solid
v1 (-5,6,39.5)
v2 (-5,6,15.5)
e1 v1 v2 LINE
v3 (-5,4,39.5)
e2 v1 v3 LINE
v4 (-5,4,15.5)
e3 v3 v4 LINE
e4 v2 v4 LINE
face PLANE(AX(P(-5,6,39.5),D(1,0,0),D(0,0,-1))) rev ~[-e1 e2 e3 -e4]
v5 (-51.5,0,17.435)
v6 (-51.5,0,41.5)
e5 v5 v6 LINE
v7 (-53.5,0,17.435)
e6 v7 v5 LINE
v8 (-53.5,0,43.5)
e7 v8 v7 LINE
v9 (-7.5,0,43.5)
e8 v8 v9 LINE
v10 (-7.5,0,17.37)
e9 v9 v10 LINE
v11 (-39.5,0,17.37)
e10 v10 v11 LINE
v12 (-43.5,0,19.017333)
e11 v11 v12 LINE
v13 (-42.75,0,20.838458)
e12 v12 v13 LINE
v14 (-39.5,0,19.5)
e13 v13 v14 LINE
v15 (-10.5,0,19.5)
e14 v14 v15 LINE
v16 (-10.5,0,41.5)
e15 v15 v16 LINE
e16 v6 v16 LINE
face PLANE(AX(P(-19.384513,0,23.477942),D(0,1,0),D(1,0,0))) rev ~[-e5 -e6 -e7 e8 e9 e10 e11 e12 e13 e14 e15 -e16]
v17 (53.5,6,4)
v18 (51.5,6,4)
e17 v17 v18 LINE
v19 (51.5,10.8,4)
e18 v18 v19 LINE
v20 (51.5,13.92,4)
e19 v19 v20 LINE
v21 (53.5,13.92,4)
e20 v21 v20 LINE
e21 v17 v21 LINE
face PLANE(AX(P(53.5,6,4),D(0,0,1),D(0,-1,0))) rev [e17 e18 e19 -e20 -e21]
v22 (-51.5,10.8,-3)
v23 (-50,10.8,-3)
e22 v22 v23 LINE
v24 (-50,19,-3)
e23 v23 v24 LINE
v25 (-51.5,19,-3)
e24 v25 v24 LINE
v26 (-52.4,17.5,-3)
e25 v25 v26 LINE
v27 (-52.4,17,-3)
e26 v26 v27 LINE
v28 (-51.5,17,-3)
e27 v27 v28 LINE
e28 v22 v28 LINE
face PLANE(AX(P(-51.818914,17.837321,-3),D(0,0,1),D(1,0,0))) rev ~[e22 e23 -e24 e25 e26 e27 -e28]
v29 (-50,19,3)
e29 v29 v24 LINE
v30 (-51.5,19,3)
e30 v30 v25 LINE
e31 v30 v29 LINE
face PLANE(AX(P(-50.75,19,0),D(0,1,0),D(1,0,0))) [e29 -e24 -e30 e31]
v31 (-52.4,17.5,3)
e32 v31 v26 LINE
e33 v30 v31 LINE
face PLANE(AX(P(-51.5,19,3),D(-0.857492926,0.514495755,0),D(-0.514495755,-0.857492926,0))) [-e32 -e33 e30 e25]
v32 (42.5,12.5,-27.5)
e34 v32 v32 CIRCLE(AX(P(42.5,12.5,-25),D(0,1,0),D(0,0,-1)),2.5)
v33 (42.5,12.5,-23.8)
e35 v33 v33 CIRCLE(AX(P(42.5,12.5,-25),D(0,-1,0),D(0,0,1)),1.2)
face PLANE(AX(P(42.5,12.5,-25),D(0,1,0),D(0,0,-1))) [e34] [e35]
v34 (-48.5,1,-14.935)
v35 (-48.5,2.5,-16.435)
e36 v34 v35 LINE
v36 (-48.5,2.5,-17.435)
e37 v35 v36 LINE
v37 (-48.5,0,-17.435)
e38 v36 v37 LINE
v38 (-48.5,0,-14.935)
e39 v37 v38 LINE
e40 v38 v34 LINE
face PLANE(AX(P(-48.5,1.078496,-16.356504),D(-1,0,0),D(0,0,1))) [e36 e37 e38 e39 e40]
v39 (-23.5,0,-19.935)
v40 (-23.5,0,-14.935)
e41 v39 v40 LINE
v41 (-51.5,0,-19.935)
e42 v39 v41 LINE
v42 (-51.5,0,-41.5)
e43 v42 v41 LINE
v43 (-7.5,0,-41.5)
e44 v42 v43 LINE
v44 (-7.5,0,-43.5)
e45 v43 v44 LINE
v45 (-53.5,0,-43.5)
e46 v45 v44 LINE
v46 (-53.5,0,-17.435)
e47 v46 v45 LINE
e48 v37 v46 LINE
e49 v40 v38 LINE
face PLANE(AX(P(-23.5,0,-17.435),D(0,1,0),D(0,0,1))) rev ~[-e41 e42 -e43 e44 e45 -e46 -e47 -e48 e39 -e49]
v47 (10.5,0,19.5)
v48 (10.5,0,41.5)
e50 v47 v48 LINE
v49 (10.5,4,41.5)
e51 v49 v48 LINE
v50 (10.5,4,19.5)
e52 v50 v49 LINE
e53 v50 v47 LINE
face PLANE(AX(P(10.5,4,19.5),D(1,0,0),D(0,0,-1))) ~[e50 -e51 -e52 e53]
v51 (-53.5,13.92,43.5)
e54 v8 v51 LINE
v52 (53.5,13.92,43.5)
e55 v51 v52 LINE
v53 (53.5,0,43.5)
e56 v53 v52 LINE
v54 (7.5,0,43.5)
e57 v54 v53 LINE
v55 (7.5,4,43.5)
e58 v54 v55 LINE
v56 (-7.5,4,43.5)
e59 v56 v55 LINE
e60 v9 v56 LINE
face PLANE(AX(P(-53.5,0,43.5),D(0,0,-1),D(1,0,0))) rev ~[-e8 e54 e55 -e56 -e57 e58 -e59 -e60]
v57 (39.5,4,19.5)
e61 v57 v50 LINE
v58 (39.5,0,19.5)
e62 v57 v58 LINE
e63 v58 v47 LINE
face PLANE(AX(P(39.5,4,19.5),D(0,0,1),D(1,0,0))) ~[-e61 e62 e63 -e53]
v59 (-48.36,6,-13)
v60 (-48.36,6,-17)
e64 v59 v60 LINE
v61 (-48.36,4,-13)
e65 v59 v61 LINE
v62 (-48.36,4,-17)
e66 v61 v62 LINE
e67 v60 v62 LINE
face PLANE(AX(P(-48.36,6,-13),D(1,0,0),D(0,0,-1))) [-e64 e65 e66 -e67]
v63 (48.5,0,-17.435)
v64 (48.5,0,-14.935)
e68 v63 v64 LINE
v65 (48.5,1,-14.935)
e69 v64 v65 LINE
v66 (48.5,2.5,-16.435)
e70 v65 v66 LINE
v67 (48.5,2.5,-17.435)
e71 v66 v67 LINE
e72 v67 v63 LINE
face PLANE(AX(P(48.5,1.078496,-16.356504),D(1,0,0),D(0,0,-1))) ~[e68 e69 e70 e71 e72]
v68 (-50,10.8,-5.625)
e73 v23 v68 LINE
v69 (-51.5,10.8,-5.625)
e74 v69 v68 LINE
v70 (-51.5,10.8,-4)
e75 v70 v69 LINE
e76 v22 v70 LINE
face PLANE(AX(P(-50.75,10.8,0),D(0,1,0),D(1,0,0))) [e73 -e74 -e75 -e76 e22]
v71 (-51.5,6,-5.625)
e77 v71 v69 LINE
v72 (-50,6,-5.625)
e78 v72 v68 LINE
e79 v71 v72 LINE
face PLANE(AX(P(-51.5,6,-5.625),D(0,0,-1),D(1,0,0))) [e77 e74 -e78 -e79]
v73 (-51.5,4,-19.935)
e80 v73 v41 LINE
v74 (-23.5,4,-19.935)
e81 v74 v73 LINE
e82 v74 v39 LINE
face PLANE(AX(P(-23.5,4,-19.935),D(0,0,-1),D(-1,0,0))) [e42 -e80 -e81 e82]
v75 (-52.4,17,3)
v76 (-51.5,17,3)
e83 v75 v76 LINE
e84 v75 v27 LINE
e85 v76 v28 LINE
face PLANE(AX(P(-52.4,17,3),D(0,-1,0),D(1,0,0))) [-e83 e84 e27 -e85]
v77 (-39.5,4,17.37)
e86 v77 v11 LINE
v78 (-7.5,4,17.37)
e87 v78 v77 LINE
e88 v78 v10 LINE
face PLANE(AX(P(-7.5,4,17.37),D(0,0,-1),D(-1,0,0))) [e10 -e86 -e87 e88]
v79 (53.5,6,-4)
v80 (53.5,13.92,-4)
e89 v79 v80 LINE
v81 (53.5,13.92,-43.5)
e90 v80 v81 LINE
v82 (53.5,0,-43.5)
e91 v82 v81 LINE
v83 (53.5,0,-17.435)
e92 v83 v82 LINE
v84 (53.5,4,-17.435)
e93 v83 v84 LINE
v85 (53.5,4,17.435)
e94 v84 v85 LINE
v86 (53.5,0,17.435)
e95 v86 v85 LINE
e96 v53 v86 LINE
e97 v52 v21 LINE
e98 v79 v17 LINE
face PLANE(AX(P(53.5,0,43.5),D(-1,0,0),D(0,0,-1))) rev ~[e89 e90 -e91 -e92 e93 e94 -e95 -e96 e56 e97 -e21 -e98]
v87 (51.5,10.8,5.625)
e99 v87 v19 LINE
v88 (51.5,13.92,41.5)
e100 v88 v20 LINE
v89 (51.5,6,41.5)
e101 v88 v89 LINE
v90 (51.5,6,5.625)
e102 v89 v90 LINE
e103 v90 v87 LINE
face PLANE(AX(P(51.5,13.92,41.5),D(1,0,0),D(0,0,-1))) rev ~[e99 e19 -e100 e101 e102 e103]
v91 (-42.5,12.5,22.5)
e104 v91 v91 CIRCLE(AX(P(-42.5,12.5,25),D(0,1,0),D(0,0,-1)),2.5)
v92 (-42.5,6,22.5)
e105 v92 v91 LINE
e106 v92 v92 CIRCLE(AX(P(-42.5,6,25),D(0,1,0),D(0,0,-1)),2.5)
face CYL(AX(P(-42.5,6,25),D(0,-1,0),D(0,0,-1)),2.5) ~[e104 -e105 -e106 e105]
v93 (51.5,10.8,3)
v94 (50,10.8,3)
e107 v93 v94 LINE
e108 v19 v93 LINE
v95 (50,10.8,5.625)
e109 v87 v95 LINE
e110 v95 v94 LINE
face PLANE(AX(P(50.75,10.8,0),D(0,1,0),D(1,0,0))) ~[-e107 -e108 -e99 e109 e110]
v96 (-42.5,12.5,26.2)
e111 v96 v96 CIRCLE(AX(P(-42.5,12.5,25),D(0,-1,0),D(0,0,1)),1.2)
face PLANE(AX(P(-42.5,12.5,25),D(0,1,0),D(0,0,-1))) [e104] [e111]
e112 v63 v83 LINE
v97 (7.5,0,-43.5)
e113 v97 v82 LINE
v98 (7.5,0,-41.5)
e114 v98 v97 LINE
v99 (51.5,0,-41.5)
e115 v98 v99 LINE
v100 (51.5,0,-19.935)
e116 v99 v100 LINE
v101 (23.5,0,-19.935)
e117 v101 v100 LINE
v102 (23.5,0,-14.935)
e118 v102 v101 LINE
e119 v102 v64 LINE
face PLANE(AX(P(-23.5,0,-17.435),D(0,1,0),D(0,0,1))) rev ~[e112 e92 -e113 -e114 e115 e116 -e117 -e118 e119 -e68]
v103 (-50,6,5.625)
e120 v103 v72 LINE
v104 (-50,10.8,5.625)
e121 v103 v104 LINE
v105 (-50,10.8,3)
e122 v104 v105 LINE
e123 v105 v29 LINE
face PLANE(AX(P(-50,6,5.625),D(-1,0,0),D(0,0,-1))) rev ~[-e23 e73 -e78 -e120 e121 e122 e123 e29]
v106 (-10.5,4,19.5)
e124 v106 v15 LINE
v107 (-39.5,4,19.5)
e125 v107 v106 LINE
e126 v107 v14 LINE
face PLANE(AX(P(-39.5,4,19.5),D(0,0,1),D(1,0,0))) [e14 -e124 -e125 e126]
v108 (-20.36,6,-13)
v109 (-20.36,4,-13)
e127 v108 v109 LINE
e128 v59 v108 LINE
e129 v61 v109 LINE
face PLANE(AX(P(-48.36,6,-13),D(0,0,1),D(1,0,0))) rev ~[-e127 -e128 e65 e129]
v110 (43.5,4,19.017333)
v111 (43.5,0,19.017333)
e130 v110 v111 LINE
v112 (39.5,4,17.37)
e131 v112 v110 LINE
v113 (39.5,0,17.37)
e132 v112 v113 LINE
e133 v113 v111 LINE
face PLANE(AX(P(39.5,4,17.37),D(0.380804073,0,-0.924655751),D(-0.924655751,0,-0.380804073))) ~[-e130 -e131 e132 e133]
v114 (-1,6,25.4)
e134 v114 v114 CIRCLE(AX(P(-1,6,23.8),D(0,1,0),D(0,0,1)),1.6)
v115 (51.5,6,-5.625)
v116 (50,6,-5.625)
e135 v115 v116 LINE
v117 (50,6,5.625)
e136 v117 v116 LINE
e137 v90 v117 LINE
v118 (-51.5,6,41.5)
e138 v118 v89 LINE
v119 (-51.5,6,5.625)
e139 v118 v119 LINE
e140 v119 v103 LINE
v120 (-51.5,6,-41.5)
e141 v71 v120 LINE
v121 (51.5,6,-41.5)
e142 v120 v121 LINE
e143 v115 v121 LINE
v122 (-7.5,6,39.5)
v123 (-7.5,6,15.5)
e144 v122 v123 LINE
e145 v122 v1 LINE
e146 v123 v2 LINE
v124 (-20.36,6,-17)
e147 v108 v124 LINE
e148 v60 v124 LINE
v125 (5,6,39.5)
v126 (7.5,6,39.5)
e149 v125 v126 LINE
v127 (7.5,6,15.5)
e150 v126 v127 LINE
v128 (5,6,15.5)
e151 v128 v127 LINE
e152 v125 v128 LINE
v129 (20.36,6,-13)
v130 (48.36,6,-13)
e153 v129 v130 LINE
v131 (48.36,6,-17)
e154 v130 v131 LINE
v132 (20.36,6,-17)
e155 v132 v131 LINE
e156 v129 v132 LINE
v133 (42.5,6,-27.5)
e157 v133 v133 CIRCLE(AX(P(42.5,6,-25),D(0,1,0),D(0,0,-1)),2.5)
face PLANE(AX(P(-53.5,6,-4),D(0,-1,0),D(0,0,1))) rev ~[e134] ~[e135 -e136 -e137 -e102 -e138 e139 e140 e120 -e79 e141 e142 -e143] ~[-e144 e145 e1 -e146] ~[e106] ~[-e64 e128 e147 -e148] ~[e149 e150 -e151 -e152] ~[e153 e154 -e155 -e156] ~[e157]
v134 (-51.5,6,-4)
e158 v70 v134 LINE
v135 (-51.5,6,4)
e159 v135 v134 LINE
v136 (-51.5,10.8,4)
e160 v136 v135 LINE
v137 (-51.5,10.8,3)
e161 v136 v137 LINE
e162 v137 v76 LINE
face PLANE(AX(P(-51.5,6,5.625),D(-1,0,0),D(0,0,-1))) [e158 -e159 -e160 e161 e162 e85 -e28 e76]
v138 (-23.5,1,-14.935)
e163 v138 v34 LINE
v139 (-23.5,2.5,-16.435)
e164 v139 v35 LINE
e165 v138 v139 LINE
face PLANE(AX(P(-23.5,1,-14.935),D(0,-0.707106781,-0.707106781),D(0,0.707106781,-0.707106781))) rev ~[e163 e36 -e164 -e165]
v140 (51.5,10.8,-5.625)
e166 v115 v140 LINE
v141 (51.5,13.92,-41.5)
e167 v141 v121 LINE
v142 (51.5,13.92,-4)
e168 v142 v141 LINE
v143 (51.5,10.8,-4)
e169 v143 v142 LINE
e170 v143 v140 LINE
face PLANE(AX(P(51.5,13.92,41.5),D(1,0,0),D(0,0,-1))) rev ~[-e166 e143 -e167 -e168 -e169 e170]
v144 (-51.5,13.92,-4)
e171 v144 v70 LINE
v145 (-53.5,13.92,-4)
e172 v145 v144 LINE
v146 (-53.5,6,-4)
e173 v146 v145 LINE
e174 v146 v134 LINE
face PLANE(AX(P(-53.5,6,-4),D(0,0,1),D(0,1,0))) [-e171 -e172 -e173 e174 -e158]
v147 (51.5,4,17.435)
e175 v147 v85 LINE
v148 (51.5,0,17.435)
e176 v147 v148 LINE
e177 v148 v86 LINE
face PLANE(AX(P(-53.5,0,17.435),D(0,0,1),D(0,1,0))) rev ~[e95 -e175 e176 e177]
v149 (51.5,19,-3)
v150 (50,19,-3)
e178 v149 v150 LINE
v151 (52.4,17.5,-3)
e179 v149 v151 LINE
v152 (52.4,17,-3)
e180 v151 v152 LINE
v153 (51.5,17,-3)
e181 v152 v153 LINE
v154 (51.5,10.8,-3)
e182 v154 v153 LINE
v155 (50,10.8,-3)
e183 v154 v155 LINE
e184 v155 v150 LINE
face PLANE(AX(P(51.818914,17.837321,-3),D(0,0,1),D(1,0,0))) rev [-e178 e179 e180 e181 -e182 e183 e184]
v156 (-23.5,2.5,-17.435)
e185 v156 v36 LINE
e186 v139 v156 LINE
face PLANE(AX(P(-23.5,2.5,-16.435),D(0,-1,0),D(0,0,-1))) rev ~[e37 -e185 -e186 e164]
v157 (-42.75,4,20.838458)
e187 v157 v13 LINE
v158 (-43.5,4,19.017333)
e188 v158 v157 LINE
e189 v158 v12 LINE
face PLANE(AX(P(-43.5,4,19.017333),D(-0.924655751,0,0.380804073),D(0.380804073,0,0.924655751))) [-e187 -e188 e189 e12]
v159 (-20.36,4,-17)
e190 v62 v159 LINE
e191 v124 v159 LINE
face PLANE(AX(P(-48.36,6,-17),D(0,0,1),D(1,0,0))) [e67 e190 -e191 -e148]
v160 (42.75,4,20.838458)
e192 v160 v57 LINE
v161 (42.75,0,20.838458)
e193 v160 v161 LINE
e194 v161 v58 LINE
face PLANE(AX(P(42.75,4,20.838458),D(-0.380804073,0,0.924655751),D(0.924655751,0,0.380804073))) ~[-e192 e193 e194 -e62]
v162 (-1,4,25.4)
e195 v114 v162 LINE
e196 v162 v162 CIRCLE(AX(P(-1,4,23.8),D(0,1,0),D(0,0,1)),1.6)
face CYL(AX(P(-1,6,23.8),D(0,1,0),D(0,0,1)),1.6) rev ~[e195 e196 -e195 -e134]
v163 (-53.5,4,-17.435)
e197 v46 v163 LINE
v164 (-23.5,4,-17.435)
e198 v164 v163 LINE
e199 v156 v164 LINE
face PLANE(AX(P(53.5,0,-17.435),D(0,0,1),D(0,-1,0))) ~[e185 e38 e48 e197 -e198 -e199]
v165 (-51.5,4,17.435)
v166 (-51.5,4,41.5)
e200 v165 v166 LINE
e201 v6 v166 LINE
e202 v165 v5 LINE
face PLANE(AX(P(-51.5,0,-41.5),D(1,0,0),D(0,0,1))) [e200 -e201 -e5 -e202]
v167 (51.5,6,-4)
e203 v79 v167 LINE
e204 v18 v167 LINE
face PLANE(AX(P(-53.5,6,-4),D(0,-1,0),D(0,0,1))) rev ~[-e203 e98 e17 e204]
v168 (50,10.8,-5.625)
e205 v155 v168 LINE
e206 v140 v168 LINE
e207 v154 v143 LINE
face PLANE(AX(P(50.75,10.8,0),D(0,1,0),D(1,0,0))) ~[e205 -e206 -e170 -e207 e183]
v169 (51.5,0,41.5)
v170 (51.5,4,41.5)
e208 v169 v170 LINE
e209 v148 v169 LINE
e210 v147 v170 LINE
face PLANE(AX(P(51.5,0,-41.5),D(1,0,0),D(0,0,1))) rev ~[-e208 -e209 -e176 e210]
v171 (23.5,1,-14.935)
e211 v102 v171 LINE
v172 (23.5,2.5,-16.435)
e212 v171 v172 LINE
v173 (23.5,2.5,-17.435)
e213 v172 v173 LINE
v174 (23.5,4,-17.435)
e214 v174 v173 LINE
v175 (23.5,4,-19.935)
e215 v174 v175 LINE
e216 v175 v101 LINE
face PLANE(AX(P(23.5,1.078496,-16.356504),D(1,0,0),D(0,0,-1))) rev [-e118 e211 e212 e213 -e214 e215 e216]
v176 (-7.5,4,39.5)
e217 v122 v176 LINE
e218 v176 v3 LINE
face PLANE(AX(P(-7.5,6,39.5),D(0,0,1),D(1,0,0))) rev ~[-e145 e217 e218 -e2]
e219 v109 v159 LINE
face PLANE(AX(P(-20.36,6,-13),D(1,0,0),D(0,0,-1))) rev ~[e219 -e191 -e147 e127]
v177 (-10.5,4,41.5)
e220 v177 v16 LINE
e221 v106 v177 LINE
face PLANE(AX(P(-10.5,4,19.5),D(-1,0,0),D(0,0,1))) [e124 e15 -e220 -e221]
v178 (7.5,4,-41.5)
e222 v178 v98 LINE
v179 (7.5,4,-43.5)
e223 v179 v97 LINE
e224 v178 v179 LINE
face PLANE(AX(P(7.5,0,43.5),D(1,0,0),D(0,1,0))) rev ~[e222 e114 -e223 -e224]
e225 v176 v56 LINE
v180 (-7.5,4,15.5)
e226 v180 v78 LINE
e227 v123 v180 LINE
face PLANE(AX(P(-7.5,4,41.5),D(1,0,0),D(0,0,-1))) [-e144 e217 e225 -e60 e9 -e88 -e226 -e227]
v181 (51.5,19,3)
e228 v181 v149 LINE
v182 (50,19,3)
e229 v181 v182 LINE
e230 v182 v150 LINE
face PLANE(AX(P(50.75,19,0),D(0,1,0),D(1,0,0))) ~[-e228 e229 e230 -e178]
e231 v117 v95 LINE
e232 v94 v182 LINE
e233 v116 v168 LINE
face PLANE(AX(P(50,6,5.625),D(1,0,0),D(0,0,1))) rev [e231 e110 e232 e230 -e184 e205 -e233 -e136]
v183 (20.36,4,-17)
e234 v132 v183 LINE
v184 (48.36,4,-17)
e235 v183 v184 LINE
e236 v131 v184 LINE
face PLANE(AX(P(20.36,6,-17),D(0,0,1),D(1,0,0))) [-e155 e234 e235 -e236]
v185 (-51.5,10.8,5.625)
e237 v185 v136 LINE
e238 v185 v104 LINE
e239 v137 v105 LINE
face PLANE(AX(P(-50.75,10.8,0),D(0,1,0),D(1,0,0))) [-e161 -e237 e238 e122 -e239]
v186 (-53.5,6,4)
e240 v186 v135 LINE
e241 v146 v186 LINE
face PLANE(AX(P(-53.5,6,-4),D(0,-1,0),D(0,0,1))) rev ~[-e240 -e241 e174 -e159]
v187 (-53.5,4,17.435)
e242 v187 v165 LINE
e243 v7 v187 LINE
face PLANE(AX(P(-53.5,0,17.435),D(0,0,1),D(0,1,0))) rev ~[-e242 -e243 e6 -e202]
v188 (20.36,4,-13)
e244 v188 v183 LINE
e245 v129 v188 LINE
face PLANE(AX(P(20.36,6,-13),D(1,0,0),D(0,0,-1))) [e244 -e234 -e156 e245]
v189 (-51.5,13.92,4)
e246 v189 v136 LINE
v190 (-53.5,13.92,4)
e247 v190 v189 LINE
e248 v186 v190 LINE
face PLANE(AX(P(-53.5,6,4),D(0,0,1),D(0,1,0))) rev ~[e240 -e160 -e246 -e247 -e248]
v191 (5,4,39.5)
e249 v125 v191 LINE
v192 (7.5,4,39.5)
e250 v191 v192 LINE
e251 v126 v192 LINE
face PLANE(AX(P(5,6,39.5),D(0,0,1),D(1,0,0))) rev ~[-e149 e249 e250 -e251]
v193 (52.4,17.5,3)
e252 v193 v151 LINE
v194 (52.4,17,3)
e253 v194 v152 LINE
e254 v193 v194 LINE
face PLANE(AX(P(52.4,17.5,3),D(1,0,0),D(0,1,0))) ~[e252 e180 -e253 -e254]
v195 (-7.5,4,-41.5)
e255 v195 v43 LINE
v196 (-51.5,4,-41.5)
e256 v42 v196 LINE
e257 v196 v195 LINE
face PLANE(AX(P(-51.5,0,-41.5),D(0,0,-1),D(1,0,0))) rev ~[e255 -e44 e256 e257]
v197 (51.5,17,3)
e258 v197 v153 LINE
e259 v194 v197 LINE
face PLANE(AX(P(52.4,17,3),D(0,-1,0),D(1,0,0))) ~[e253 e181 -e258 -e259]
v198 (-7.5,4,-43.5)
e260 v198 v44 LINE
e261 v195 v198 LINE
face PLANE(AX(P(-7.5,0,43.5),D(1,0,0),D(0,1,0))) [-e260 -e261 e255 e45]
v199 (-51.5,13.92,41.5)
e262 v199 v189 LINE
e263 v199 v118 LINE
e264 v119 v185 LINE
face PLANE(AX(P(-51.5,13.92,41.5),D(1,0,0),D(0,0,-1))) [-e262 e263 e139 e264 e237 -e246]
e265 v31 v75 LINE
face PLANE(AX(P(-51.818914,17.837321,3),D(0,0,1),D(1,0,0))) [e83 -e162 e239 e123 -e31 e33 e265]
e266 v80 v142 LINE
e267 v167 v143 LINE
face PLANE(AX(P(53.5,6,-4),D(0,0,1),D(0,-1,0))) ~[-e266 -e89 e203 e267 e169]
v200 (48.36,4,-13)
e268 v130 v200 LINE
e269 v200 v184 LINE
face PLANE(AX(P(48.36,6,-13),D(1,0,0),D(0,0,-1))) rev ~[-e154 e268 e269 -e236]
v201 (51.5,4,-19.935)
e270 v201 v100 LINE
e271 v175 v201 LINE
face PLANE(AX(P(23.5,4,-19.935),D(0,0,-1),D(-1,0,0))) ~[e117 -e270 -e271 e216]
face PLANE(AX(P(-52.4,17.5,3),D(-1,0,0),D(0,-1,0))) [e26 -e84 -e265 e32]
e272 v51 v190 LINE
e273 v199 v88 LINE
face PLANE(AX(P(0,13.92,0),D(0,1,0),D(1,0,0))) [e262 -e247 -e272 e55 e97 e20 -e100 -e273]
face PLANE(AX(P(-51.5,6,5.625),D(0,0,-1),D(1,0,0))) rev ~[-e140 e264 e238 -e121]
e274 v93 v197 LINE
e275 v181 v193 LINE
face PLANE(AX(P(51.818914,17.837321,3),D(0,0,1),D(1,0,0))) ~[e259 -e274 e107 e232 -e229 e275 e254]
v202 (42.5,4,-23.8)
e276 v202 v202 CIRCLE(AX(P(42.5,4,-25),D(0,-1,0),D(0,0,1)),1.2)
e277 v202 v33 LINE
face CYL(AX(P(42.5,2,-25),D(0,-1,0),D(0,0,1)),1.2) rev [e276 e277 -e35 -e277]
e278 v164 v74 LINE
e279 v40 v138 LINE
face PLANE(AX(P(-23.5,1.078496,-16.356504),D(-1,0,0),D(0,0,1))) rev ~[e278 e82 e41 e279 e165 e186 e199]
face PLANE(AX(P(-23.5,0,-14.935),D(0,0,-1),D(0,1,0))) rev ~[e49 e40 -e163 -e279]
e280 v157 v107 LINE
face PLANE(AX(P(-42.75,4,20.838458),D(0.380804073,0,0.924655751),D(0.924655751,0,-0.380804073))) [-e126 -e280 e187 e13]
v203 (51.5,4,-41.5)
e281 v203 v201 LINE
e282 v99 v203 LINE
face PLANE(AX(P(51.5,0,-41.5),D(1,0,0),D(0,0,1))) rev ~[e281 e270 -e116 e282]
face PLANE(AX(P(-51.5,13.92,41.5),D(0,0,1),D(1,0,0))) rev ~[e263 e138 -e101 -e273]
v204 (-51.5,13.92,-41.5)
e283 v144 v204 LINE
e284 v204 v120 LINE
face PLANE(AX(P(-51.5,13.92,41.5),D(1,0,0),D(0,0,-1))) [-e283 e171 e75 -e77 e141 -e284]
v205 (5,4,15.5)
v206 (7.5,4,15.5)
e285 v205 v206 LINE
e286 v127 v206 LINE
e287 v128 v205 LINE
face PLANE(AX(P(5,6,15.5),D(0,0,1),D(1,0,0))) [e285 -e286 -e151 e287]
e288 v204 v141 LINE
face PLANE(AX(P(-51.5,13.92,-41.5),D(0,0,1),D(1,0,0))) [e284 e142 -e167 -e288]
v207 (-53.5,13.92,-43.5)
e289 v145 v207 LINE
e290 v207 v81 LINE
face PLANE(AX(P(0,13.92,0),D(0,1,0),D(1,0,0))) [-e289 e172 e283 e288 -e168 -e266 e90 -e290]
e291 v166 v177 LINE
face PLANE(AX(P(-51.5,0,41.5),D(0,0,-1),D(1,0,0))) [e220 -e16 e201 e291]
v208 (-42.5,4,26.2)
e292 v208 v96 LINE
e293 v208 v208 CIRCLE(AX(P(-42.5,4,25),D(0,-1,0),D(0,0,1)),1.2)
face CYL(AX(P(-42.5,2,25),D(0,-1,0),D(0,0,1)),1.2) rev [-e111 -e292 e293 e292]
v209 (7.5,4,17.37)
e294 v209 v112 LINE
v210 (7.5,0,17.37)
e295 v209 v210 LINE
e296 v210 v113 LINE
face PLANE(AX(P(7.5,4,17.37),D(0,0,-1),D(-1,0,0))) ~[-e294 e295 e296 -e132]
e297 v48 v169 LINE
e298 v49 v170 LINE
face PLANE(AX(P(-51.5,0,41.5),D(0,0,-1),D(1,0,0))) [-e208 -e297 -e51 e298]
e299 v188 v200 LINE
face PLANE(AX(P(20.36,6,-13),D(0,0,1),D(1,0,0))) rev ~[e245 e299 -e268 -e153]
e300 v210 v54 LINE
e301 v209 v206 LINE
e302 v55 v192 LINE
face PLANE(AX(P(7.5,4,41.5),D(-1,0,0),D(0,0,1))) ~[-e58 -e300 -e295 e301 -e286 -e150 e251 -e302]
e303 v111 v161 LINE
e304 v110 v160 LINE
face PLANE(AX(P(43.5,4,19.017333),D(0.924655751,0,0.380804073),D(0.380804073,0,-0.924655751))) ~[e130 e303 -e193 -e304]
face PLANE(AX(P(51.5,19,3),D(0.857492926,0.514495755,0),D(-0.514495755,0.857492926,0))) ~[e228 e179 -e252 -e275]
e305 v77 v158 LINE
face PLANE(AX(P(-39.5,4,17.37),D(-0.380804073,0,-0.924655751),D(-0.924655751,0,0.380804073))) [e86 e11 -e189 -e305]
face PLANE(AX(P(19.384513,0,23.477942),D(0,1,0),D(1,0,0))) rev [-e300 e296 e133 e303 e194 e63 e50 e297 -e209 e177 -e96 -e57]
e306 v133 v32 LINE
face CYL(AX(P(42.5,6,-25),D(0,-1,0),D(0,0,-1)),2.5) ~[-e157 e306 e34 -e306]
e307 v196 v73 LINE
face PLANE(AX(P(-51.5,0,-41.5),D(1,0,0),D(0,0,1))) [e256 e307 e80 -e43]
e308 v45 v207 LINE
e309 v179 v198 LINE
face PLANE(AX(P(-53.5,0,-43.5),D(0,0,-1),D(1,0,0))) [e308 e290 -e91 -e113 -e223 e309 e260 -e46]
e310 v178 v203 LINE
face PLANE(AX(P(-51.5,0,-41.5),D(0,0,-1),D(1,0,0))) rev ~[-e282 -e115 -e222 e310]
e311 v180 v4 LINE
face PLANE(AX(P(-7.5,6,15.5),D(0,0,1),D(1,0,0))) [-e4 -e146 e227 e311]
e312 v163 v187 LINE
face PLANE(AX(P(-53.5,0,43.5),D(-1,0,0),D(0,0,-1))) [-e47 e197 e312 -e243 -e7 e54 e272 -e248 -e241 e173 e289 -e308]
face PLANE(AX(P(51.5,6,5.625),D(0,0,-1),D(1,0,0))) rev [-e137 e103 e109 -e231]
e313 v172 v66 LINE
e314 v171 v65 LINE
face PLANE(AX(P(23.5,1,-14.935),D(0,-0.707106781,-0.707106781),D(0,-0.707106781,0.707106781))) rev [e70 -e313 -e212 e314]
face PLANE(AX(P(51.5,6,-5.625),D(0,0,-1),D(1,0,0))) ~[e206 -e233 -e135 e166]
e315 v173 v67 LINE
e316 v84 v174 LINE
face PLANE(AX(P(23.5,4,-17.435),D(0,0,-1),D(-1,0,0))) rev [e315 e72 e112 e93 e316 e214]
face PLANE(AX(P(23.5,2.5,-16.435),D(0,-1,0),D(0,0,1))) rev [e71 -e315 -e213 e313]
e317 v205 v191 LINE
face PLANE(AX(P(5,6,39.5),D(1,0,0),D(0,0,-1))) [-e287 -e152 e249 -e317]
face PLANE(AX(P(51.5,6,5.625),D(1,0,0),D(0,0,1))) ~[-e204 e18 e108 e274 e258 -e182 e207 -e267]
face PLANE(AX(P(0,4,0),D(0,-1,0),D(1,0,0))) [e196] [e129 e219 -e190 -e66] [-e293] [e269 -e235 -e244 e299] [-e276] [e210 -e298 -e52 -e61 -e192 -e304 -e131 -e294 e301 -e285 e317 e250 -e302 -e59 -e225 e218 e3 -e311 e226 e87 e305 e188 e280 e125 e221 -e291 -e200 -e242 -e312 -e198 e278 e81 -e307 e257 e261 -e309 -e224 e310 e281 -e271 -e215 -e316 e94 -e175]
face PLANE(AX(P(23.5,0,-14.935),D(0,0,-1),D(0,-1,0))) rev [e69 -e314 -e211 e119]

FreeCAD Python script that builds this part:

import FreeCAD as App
import Part
import Sketcher

V = App.Vector


def add_polygon(sketch, points):
    """Adds a closed chain of lines whose ends are joined by coincident constraints."""
    first, n = sketch.GeometryCount, len(points)
    for a, b in zip(points, points[1:] + points[:1]):
        sketch.addGeometry(Part.LineSegment(App.Vector(*a, 0), App.Vector(*b, 0)), False)
    for i in range(n):
        sketch.addConstraint(Sketcher.Constraint("Coincident", first + i, 2, first + (i + 1) % n, 1))

doc = App.newDocument("Part")
body = doc.addObject("PartDesign::Body", "Body")

sketch1 = body.newObject("Sketcher::SketchObject", "Sketch")
sketch1.AttachmentSupport = (doc.getObject("XZ_Plane"), [""])
sketch1.MapMode = "FlatFace"
add_polygon(sketch1, [(-54, -44), (-54, 44), (54, 44), (54, -44)])
sketch1.addConstraint(Sketcher.Constraint("Vertical", 0))
sketch1.addConstraint(Sketcher.Constraint("Horizontal", 1))
sketch1.addConstraint(Sketcher.Constraint("Vertical", 2))
sketch1.addConstraint(Sketcher.Constraint("Horizontal", 3))
sketch1.addConstraint(Sketcher.Constraint("Symmetric", 0, 2, 2, 2, -1, 1))
sketch1.addConstraint(Sketcher.Constraint("DistanceX", 1, 1, 1, 2, 107.0))
sketch1.addConstraint(Sketcher.Constraint("DistanceY", 0, 1, 0, 2, 87.0))
pad1 = body.newObject("PartDesign::Pad", "Pad")
pad1.Profile = sketch1
pad1.Length = 13.92
pad1.Reversed = True

sketch2 = body.newObject("Sketcher::SketchObject", "Sketch001")
sketch2.AttachmentSupport = (doc.getObject("XZ_Plane"), [""])
sketch2.MapMode = "FlatFace"
sketch2.AttachmentOffset = App.Placement(V(0, 0, -13.92), App.Rotation())
add_polygon(sketch2, [(-52, -42), (-52, 42), (52, 42), (52, -42)])
sketch2.addConstraint(Sketcher.Constraint("Vertical", 0))
sketch2.addConstraint(Sketcher.Constraint("Horizontal", 1))
sketch2.addConstraint(Sketcher.Constraint("Vertical", 2))
sketch2.addConstraint(Sketcher.Constraint("Horizontal", 3))
sketch2.addConstraint(Sketcher.Constraint("Symmetric", 0, 2, 2, 2, -1, 1))
sketch2.addConstraint(Sketcher.Constraint("DistanceX", 1, 1, 1, 2, 103.0))
sketch2.addConstraint(Sketcher.Constraint("DistanceY", 0, 1, 0, 2, 83.0))
pocket1 = body.newObject("PartDesign::Pocket", "Pocket")
pocket1.Profile = sketch2
pocket1.Length = 7.92
pocket1.Reversed = True

sketch3 = body.newObject("Sketcher::SketchObject", "Sketch002")
sketch3.AttachmentSupport = (doc.getObject("XZ_Plane"), [""])
sketch3.MapMode = "FlatFace"
sketch3.AttachmentOffset = App.Placement(V(0, 0, -6), App.Rotation())
sketch3.addGeometry(Part.Circle(V(-42.5, 25, 0), V(0, 0, 1), 2.5), False)
sketch3.addGeometry(Part.Circle(V(42.5, -25, 0), V(0, 0, 1), 2.5), False)
sketch3.addConstraint(Sketcher.Constraint("Equal", 0, 1))
sketch3.addConstraint(Sketcher.Constraint("Symmetric", 0, 3, 1, 3, -1, 1))
sketch3.addConstraint(Sketcher.Constraint("Diameter", 0, 5.0))
sketch3.addConstraint(Sketcher.Constraint("DistanceY", -1, 1, 0, 3, 25.0))
sketch3.addConstraint(Sketcher.Constraint("DistanceX", 0, 3, 1, 3, 85.0))
pad2 = body.newObject("PartDesign::Pad", "Pad001")
pad2.Profile = sketch3
pad2.Length = 6.5
pad2.Reversed = True

sketch4 = body.newObject("Sketcher::SketchObject", "Sketch003")
sketch4.AttachmentSupport = (doc.getObject("XZ_Plane"), [""])
sketch4.MapMode = "FlatFace"
sketch4.AttachmentOffset = App.Placement(V(0, 0, -6), App.Rotation())
sketch4.addGeometry(Part.Circle(V(-42.5, 25, 0), V(0, 0, 1), 1.2), False)
sketch4.addGeometry(Part.Circle(V(42.5, -25, 0), V(0, 0, 1), 1.2), False)
sketch4.addConstraint(Sketcher.Constraint("Equal", 0, 1))
sketch4.addConstraint(Sketcher.Constraint("Symmetric", 0, 3, 1, 3, -1, 1))
sketch4.addConstraint(Sketcher.Constraint("Diameter", 0, 2.4))
sketch4.addConstraint(Sketcher.Constraint("DistanceY", -1, 1, 0, 3, 25.0))
sketch4.addConstraint(Sketcher.Constraint("DistanceX", 0, 3, 1, 3, 85.0))
pocket2 = body.newObject("PartDesign::Pocket", "Pocket001")
pocket2.Profile = sketch4
pocket2.Type = "TwoLengths"
pocket2.Length = 70.406242
pocket2.Length2 = 4

sketch5 = body.newObject("Sketcher::SketchObject", "Sketch004")
sketch5.AttachmentSupport = (doc.getObject("XZ_Plane"), [""])
sketch5.MapMode = "FlatFace"
sketch5.AttachmentOffset = App.Placement(V(0, 0, -6), App.Rotation())
add_polygon(sketch5, [(-48.4, -17), (-48.4, -13), (-20.4, -13), (-20.4, -17)])
add_polygon(sketch5, [(20.4, -17), (20.4, -13), (48.4, -13), (48.4, -17)])
sketch5.addConstraint(Sketcher.Constraint("Vertical", 0))
sketch5.addConstraint(Sketcher.Constraint("Horizontal", 1))
sketch5.addConstraint(Sketcher.Constraint("Vertical", 2))
sketch5.addConstraint(Sketcher.Constraint("Horizontal", 3))
sketch5.addConstraint(Sketcher.Constraint("Vertical", 4))
sketch5.addConstraint(Sketcher.Constraint("Horizontal", 5))
sketch5.addConstraint(Sketcher.Constraint("Vertical", 6))
sketch5.addConstraint(Sketcher.Constraint("Horizontal", 7))
sketch5.addConstraint(Sketcher.Constraint("Symmetric", 1, 2, 4, 2, -2))
sketch5.addConstraint(Sketcher.Constraint("Symmetric", 3, 2, 6, 2, -2))
sketch5.addConstraint(Sketcher.Constraint("DistanceX", 1, 1, 1, 2, 28.0))
sketch5.addConstraint(Sketcher.Constraint("DistanceY", 0, 1, 0, 2, 4.0))
sketch5.addConstraint(Sketcher.Constraint("DistanceY", 0, 2, -1, 1, 13.0))
sketch5.addConstraint(Sketcher.Constraint("DistanceX", 0, 2, -1, 1, 48.36))
pocket3 = body.newObject("PartDesign::Pocket", "Pocket002")
pocket3.Profile = sketch5
pocket3.Type = "ThroughAll"
pocket3.Reversed = True

sketch6 = body.newObject("Sketcher::SketchObject", "Sketch005")
sketch6.AttachmentSupport = (doc.getObject("XZ_Plane"), [""])
sketch6.MapMode = "FlatFace"
sketch6.AttachmentOffset = App.Placement(V(0, 0, -6), App.Rotation())
add_polygon(sketch6, [(5, 15.5), (5, 39.5), (7.5, 39.5), (7.5, 15.5)])
add_polygon(sketch6, [(-7.5, 15.5), (-7.5, 39.5), (-5, 39.5), (-5, 15.5)])
sketch6.addConstraint(Sketcher.Constraint("Vertical", 0))
sketch6.addConstraint(Sketcher.Constraint("Horizontal", 1))
sketch6.addConstraint(Sketcher.Constraint("Vertical", 2))
sketch6.addConstraint(Sketcher.Constraint("Horizontal", 3))
sketch6.addConstraint(Sketcher.Constraint("Vertical", 4))
sketch6.addConstraint(Sketcher.Constraint("Horizontal", 5))
sketch6.addConstraint(Sketcher.Constraint("Vertical", 6))
sketch6.addConstraint(Sketcher.Constraint("Horizontal", 7))
sketch6.addConstraint(Sketcher.Constraint("Symmetric", 1, 2, 4, 2, -2))
sketch6.addConstraint(Sketcher.Constraint("Symmetric", 3, 2, 6, 2, -2))
sketch6.addConstraint(Sketcher.Constraint("DistanceY", 0, 1, 0, 2, 24.0))
sketch6.addConstraint(Sketcher.Constraint("DistanceX", 1, 1, 1, 2, 2.5))
sketch6.addConstraint(Sketcher.Constraint("DistanceX", -1, 1, 0, 2, 5.0))
sketch6.addConstraint(Sketcher.Constraint("DistanceY", -1, 1, 0, 2, 39.5))
pocket4 = body.newObject("PartDesign::Pocket", "Pocket003")
pocket4.Profile = sketch6
pocket4.Type = "ThroughAll"
pocket4.Reversed = True

sketch7 = body.newObject("Sketcher::SketchObject", "Sketch006")
sketch7.AttachmentSupport = (doc.getObject("XZ_Plane"), [""])
sketch7.MapMode = "FlatFace"
sketch7.AttachmentOffset = App.Placement(V(0, 0, -6), App.Rotation())
sketch7.addGeometry(Part.Circle(V(-1, 23.8, 0), V(0, 0, 1), 1.6), False)
sketch7.addConstraint(Sketcher.Constraint("Diameter", 0, 3.2))
sketch7.addConstraint(Sketcher.Constraint("DistanceX", 0, 3, -1, 1, 1.0))
sketch7.addConstraint(Sketcher.Constraint("DistanceY", -1, 1, 0, 3, 23.8))
pocket5 = body.newObject("PartDesign::Pocket", "Pocket004")
pocket5.Profile = sketch7
pocket5.Type = "ThroughAll"
pocket5.Reversed = True

sketch8 = body.newObject("Sketcher::SketchObject", "Sketch007")
sketch8.AttachmentSupport = (doc.getObject("YZ_Plane"), [""])
sketch8.MapMode = "FlatFace"
sketch8.AttachmentOffset = App.Placement(V(0, 0, -53.5), App.Rotation())
add_polygon(sketch8, [(14, -4), (6, -4), (6, 4), (14, 4)])
sketch8.addConstraint(Sketcher.Constraint("Horizontal", 0))
sketch8.addConstraint(Sketcher.Constraint("Vertical", 1))
sketch8.addConstraint(Sketcher.Constraint("Horizontal", 2))
sketch8.addConstraint(Sketcher.Constraint("Vertical", 3))
sketch8.addConstraint(Sketcher.Constraint("DistanceY", 1, 1, 1, 2, 8.0))
sketch8.addConstraint(Sketcher.Constraint("DistanceX", -1, 1, 0, 2, 6.0))
sketch8.addConstraint(Sketcher.Constraint("DistanceY", 0, 2, -1, 1, 4.0))
sketch8.addConstraint(Sketcher.Constraint("DistanceX", 0, 2, 0, 1, 7.92))
pocket6 = body.newObject("PartDesign::Pocket", "Pocket005")
pocket6.Profile = sketch8
pocket6.Length = 4
pocket6.Reversed = True

sketch9 = body.newObject("Sketcher::SketchObject", "Sketch008")
sketch9.AttachmentSupport = (doc.getObject("XZ_Plane"), [""])
sketch9.MapMode = "FlatFace"
sketch9.AttachmentOffset = App.Placement(V(0, 0, -6), App.Rotation())
add_polygon(sketch9, [(-51.5, -5.6), (-51.5, 5.6), (-50, 5.6), (-50, -5.6)])
sketch9.addConstraint(Sketcher.Constraint("Vertical", 0))
sketch9.addConstraint(Sketcher.Constraint("Horizontal", 1))
sketch9.addConstraint(Sketcher.Constraint("Vertical", 2))
sketch9.addConstraint(Sketcher.Constraint("Horizontal", 3))
sketch9.addConstraint(Sketcher.Constraint("DistanceX", 1, 1, 1, 2, 1.5))
sketch9.addConstraint(Sketcher.Constraint("DistanceX", 1, 2, -1, 1, 50.0))
sketch9.addConstraint(Sketcher.Constraint("DistanceY", 0, 1, 0, 2, 11.25))
sketch9.addConstraint(Sketcher.Constraint("DistanceY", -1, 1, 0, 2, 5.625))
pad3 = body.newObject("PartDesign::Pad", "Pad002")
pad3.Profile = sketch9
pad3.Length = 4.8
pad3.Reversed = True

sketch10 = body.newObject("Sketcher::SketchObject", "Sketch009")
sketch10.AttachmentSupport = (doc.getObject("XZ_Plane"), [""])
sketch10.MapMode = "FlatFace"
sketch10.AttachmentOffset = App.Placement(V(0, 0, -10.8), App.Rotation())
add_polygon(sketch10, [(-51.5, -3), (-51.5, 3), (-50, 3), (-50, -3)])
sketch10.addConstraint(Sketcher.Constraint("Vertical", 0))
sketch10.addConstraint(Sketcher.Constraint("Horizontal", 1))
sketch10.addConstraint(Sketcher.Constraint("Vertical", 2))
sketch10.addConstraint(Sketcher.Constraint("Horizontal", 3))
sketch10.addConstraint(Sketcher.Constraint("DistanceY", 0, 1, 0, 2, 6.0))
sketch10.addConstraint(Sketcher.Constraint("DistanceX", 1, 1, 1, 2, 1.5))
sketch10.addConstraint(Sketcher.Constraint("DistanceY", -1, 1, 0, 2, 3.0))
sketch10.addConstraint(Sketcher.Constraint("DistanceX", 1, 2, -1, 1, 50.0))
pad4 = body.newObject("PartDesign::Pad", "Pad003")
pad4.Profile = sketch10
pad4.Length = 8.2
pad4.Reversed = True

sketch11 = body.newObject("Sketcher::SketchObject", "Sketch010")
sketch11.AttachmentSupport = (doc.getObject("XY_Plane"), [""])
sketch11.MapMode = "FlatFace"
sketch11.AttachmentOffset = App.Placement(V(0, 0, 3), App.Rotation())
add_polygon(sketch11, [(-51.5, 19), (-52.4, 17.5), (-52.4, 17), (-51.5, 17)])
sketch11.addConstraint(Sketcher.Constraint("Vertical", 1))
sketch11.addConstraint(Sketcher.Constraint("Horizontal", 2))
sketch11.addConstraint(Sketcher.Constraint("Vertical", 3))
sketch11.addConstraint(Sketcher.Constraint("DistanceY", 3, 1, 3, 2, 2.0))
sketch11.addConstraint(Sketcher.Constraint("DistanceX", 2, 1, 2, 2, 0.9))
sketch11.addConstraint(Sketcher.Constraint("DistanceY", 1, 2, 1, 1, 0.5))
sketch11.addConstraint(Sketcher.Constraint("DistanceY", -1, 1, 1, 2, 17.0))
sketch11.addConstraint(Sketcher.Constraint("DistanceX", 0, 2, -1, 1, 52.4))
pad5 = body.newObject("PartDesign::Pad", "Pad004")
pad5.Profile = sketch11
pad5.Length = 6
pad5.Reversed = True
doc.recompute()

mirrored = body.newObject("PartDesign::Mirrored", "Mirrored")
mirrored.Originals = [pocket6, pad3, pad4, pad5]
mirrored.MirrorPlane = (doc.getObject("YZ_Plane"), [""])
body.Tip = mirrored

sketch12 = body.newObject("Sketcher::SketchObject", "Sketch011")
sketch12.AttachmentSupport = (doc.getObject("XZ_Plane"), [""])
sketch12.MapMode = "FlatFace"
add_polygon(sketch12, [(-52, 42), (-52, -42), (52, -42), (52, 42)])
sketch12.addConstraint(Sketcher.Constraint("Vertical", 0))
sketch12.addConstraint(Sketcher.Constraint("Horizontal", 1))
sketch12.addConstraint(Sketcher.Constraint("Vertical", 2))
sketch12.addConstraint(Sketcher.Constraint("Horizontal", 3))
sketch12.addConstraint(Sketcher.Constraint("Symmetric", 0, 2, 2, 2, -1, 1))
sketch12.addConstraint(Sketcher.Constraint("DistanceX", 1, 1, 1, 2, 103.0))
sketch12.addConstraint(Sketcher.Constraint("DistanceY", 0, 2, 0, 1, 83.0))
pocket7 = body.newObject("PartDesign::Pocket", "Pocket006")
pocket7.Profile = sketch12
pocket7.Length = 4

sketch13 = body.newObject("Sketcher::SketchObject", "Sketch012")
sketch13.AttachmentSupport = (doc.getObject("YZ_Plane"), [""])
sketch13.MapMode = "FlatFace"
sketch13.AttachmentOffset = App.Placement(V(0, 0, -53.5), App.Rotation())
add_polygon(sketch13, [(4, -17.4), (0, -17.4), (0, 17.4), (4, 17.4)])
sketch13.addConstraint(Sketcher.Constraint("Horizontal", 0))
sketch13.addConstraint(Sketcher.Constraint("Vertical", 1))
sketch13.addConstraint(Sketcher.Constraint("Horizontal", 2))
sketch13.addConstraint(Sketcher.Constraint("Vertical", 3))
sketch13.addConstraint(Sketcher.Constraint("Symmetric", 0, 2, 1, 2, -1, 1))
sketch13.addConstraint(Sketcher.Constraint("DistanceX", 0, 2, 0, 1, 4.0))
sketch13.addConstraint(Sketcher.Constraint("DistanceY", 1, 1, 1, 2, 34.87))
pocket8 = body.newObject("PartDesign::Pocket", "Pocket007")
pocket8.Profile = sketch13
pocket8.Type = "ThroughAll"
pocket8.Reversed = True

sketch14 = body.newObject("Sketcher::SketchObject", "Sketch013")
sketch14.AttachmentSupport = (doc.getObject("XZ_Plane"), [""])
sketch14.MapMode = "FlatFace"
sketch14.AttachmentOffset = App.Placement(V(0, 0, -4), App.Rotation())
add_polygon(sketch14, [(-23.5, -19.9), (-23.5, -17.4), (-51.5, -17.4), (-51.5, -19.9)])
sketch14.addConstraint(Sketcher.Constraint("Vertical", 0))
sketch14.addConstraint(Sketcher.Constraint("Horizontal", 1))
sketch14.addConstraint(Sketcher.Constraint("Vertical", 2))
sketch14.addConstraint(Sketcher.Constraint("Horizontal", 3))
sketch14.addConstraint(Sketcher.Constraint("DistanceX", 1, 2, 1, 1, 28.0))
sketch14.addConstraint(Sketcher.Constraint("DistanceY", 0, 1, 0, 2, 2.5))
sketch14.addConstraint(Sketcher.Constraint("DistanceX", 0, 2, -1, 1, 23.5))
sketch14.addConstraint(Sketcher.Constraint("DistanceY", 0, 2, -1, 1, 17.435))
pad6 = body.newObject("PartDesign::Pad", "Pad005")
pad6.Profile = sketch14
pad6.Length = 4

sketch15 = body.newObject("Sketcher::SketchObject", "Sketch014")
sketch15.AttachmentSupport = (doc.getObject("YZ_Plane"), [""])
sketch15.MapMode = "FlatFace"
sketch15.AttachmentOffset = App.Placement(V(0, 0, -23.5), App.Rotation())
add_polygon(sketch15, [(0, -14.9), (0, -17.4), (2.5, -17.4), (2.5, -16.4), (1, -14.9)])
sketch15.addConstraint(Sketcher.Constraint("Vertical", 0))
sketch15.addConstraint(Sketcher.Constraint("Horizontal", 1))
sketch15.addConstraint(Sketcher.Constraint("Vertical", 2))
sketch15.addConstraint(Sketcher.Constraint("Horizontal", 4))
sketch15.addConstraint(Sketcher.Constraint("PointOnObject", 0, 2, -2))
sketch15.addConstraint(Sketcher.Constraint("Equal", 1, 0))
sketch15.addConstraint(Sketcher.Constraint("Equal", 4, 2))
sketch15.addConstraint(Sketcher.Constraint("DistanceX", 4, 2, 4, 1, 1.0))
sketch15.addConstraint(Sketcher.Constraint("DistanceX", 1, 1, 1, 2, 2.5))
sketch15.addConstraint(Sketcher.Constraint("DistanceY", 0, 2, -1, 1, 17.435))
pad7 = body.newObject("PartDesign::Pad", "Pad006")
pad7.Profile = sketch15
pad7.Length = 25
pad7.Reversed = True
doc.recompute()

mirrored2 = body.newObject("PartDesign::Mirrored", "Mirrored001")
mirrored2.Originals = [pocket8, pad6, pad7]
mirrored2.MirrorPlane = (doc.getObject("YZ_Plane"), [""])
body.Tip = mirrored2

sketch16 = body.newObject("Sketcher::SketchObject", "Sketch015")
sketch16.AttachmentSupport = (doc.getObject("YZ_Plane"), [""])
sketch16.MapMode = "FlatFace"
sketch16.AttachmentOffset = App.Placement(V(0, 0, -23.5), App.Rotation())
add_polygon(sketch16, [(0, -14.9), (0, -17.4), (2.5, -17.4), (2.5, -16.4), (1, -14.9)])
sketch16.addConstraint(Sketcher.Constraint("Vertical", 0))
sketch16.addConstraint(Sketcher.Constraint("Horizontal", 1))
sketch16.addConstraint(Sketcher.Constraint("Vertical", 2))
sketch16.addConstraint(Sketcher.Constraint("Horizontal", 4))
sketch16.addConstraint(Sketcher.Constraint("PointOnObject", 0, 2, -2))
sketch16.addConstraint(Sketcher.Constraint("Equal", 1, 0))
sketch16.addConstraint(Sketcher.Constraint("Equal", 4, 2))
sketch16.addConstraint(Sketcher.Constraint("DistanceX", 4, 2, 4, 1, 1.0))
sketch16.addConstraint(Sketcher.Constraint("DistanceX", 1, 1, 1, 2, 2.5))
sketch16.addConstraint(Sketcher.Constraint("DistanceY", 0, 2, -1, 1, 17.435))
pad8 = body.newObject("PartDesign::Pad", "Pad007")
pad8.Profile = sketch16
pad8.Length = 25
pad8.Reversed = True

sketch17 = body.newObject("Sketcher::SketchObject", "Sketch016")
sketch17.AttachmentSupport = (doc.getObject("XY_Plane"), [""])
sketch17.MapMode = "FlatFace"
sketch17.AttachmentOffset = App.Placement(V(0, 0, 43.5), App.Rotation())
add_polygon(sketch17, [(-7.5, 4), (-7.5, 0), (7.5, 0), (7.5, 4)])
sketch17.addConstraint(Sketcher.Constraint("Vertical", 0))
sketch17.addConstraint(Sketcher.Constraint("Horizontal", 1))
sketch17.addConstraint(Sketcher.Constraint("Vertical", 2))
sketch17.addConstraint(Sketcher.Constraint("Horizontal", 3))
sketch17.addConstraint(Sketcher.Constraint("Symmetric", 0, 2, 1, 2, -1, 1))
sketch17.addConstraint(Sketcher.Constraint("DistanceX", 1, 1, 1, 2, 15.0))
sketch17.addConstraint(Sketcher.Constraint("DistanceY", 0, 2, 0, 1, 4.0))
pocket9 = body.newObject("PartDesign::Pocket", "Pocket008")
pocket9.Profile = sketch17
pocket9.Type = "ThroughAll"

sketch18 = body.newObject("Sketcher::SketchObject", "Sketch017")
sketch18.AttachmentSupport = (doc.getObject("XZ_Plane"), [""])
sketch18.MapMode = "FlatFace"
sketch18.AttachmentOffset = App.Placement(V(0, 0, -4), App.Rotation())
add_polygon(sketch18, [(-7.5, 17.4), (-7.5, 41.5), (-10.5, 41.5), (-10.5, 19.5), (-39.5, 19.5), (-42.8, 20.8), (-43.5, 19), (-39.5, 17.4)])
sketch18.addConstraint(Sketcher.Constraint("Vertical", 0))
sketch18.addConstraint(Sketcher.Constraint("Horizontal", 1))
sketch18.addConstraint(Sketcher.Constraint("Vertical", 2))
sketch18.addConstraint(Sketcher.Constraint("Horizontal", 3))
sketch18.addConstraint(Sketcher.Constraint("Horizontal", 7))
sketch18.addConstraint(Sketcher.Constraint("Perpendicular", 4, 5))
sketch18.addConstraint(Sketcher.Constraint("Perpendicular", 5, 6))
sketch18.addConstraint(Sketcher.Constraint("Vertical", 3, 2, 6, 2))
sketch18.addConstraint(Sketcher.Constraint("DistanceX", 1, 2, 1, 1, 3.0))
sketch18.addConstraint(Sketcher.Constraint("DistanceX", 3, 2, 3, 1, 29.0))
sketch18.addConstraint(Sketcher.Constraint("DistanceY", 2, 2, 2, 1, 22.0))
sketch18.addConstraint(Sketcher.Constraint("DistanceX", 5, 2, 3, 2, 4.0))
sketch18.addConstraint(Sketcher.Constraint("DistanceY", 0, 1, 0, 2, 24.13))
sketch18.addConstraint(Sketcher.Constraint("DistanceX", 0, 2, -1, 1, 7.5))
sketch18.addConstraint(Sketcher.Constraint("DistanceY", -1, 1, 0, 2, 41.5))
sketch18.addConstraint(Sketcher.Constraint("DistanceX", 4, 2, -1, 1, 42.75))
pad9 = body.newObject("PartDesign::Pad", "Pad008")
pad9.Profile = sketch18
pad9.Length = 4
doc.recompute()

mirrored3 = body.newObject("PartDesign::Mirrored", "Mirrored002")
mirrored3.Originals = [pocket9, pad9]
mirrored3.MirrorPlane = (doc.getObject("YZ_Plane"), [""])
body.Tip = mirrored3

doc.recompute()
